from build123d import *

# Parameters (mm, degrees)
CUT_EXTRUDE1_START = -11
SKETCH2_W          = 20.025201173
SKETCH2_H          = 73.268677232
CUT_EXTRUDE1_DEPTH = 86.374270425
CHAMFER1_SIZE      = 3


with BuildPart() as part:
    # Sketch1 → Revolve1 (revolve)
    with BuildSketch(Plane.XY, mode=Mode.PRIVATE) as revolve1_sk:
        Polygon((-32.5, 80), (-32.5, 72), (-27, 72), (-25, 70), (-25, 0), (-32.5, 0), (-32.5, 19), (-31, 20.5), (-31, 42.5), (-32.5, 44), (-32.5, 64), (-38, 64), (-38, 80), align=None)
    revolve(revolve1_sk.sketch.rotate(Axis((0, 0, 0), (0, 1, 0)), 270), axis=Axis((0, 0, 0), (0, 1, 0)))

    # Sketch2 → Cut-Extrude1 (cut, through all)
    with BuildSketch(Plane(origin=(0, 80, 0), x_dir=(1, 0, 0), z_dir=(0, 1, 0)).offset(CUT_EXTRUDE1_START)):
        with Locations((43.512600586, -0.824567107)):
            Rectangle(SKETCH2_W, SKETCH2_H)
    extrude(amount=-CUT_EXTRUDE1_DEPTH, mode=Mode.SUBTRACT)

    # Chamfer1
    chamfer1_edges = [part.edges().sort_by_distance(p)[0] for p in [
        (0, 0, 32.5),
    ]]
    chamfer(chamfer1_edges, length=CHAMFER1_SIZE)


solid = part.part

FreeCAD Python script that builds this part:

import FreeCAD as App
import Part
import Sketcher
from FreeCAD import Vector


def edges_at(feature, points):
    """Names of the edges that pass closest to the given points."""
    edges = feature.Shape.Edges
    near = lambda p: min(range(len(edges)), key=lambda i: edges[i].distToShape(Part.Vertex(*p))[0])
    return sorted({f"Edge{near(p) + 1}" for p in points})

doc = App.newDocument("Part")
body = doc.addObject("PartDesign::Body", "Body")

# Sketch on XY plane
sketch1 = body.newObject("Sketcher::SketchObject", "Sketch")
sketch1.AttachmentSupport = (doc.getObject("XY_Plane"), [""])
sketch1.MapMode = "FlatFace"
sketch1.addGeometry([
    Part.LineSegment(Vector(-32.5, 72, 0), Vector(-32.5, 80, 0)),  # 0
    Part.LineSegment(Vector(-32.5, 80, 0), Vector(-38, 80, 0)),  # 1
    Part.LineSegment(Vector(-38, 80, 0), Vector(-38, 64, 0)),  # 2
    Part.LineSegment(Vector(-38, 64, 0), Vector(-32.5, 64, 0)),  # 3
    Part.LineSegment(Vector(-32.5, 64, 0), Vector(-32.5, 44, 0)),  # 4
    Part.LineSegment(Vector(-32.5, 44, 0), Vector(-31, 42.5, 0)),  # 5
    Part.LineSegment(Vector(-31, 42.5, 0), Vector(-31, 20.5, 0)),  # 6
    Part.LineSegment(Vector(-31, 20.5, 0), Vector(-32.5, 19, 0)),  # 7
    Part.LineSegment(Vector(-32.5, 19, 0), Vector(-32.5, 0, 0)),  # 8
    Part.LineSegment(Vector(-32.5, 0, 0), Vector(-25, 0, 0)),  # 9
    Part.LineSegment(Vector(-25, 0, 0), Vector(-25, 70, 0)),  # 10
    Part.LineSegment(Vector(-25, 70, 0), Vector(-27, 72, 0)),  # 11
    Part.LineSegment(Vector(-27, 72, 0), Vector(-32.5, 72, 0)),  # 12
], False)
sketch1.addConstraint([
    Sketcher.Constraint("Coincident", 0, 2, 1, 1),
    Sketcher.Constraint("Coincident", 1, 2, 2, 1),
    Sketcher.Constraint("Coincident", 2, 2, 3, 1),
    Sketcher.Constraint("Coincident", 3, 2, 4, 1),
    Sketcher.Constraint("Coincident", 4, 2, 5, 1),
    Sketcher.Constraint("Coincident", 5, 2, 6, 1),
    Sketcher.Constraint("Coincident", 6, 2, 7, 1),
    Sketcher.Constraint("Coincident", 7, 2, 8, 1),
    Sketcher.Constraint("Coincident", 8, 2, 9, 1),
    Sketcher.Constraint("Coincident", 9, 2, 10, 1),
    Sketcher.Constraint("Coincident", 10, 2, 11, 1),
    Sketcher.Constraint("Coincident", 11, 2, 12, 1),
    Sketcher.Constraint("Coincident", 12, 2, 0, 1),
    Sketcher.Constraint("Vertical", 0),
    Sketcher.Constraint("Horizontal", 1),
    Sketcher.Constraint("Vertical", 2),
    Sketcher.Constraint("Horizontal", 3),
    Sketcher.Constraint("Vertical", 4),
    Sketcher.Constraint("Vertical", 6),
    Sketcher.Constraint("Vertical", 8),
    Sketcher.Constraint("Horizontal", 9),
    Sketcher.Constraint("Vertical", 10),
    Sketcher.Constraint("Horizontal", 12),
    Sketcher.Constraint("PointOnObject", 8, 2, -1),
    Sketcher.Constraint("Perpendicular", 5, 7),
    Sketcher.Constraint("Perpendicular", 7, 11),
    Sketcher.Constraint("Vertical", 0, 2, 3, 2),
    Sketcher.Constraint("Vertical", 4, 2, 7, 2),
    Sketcher.Constraint("Equal", 3, 12),
    Sketcher.Constraint("Equal", 5, 7),
    Sketcher.Constraint("DistanceY", 0, 1, 0, 2, 8.0),
    Sketcher.Constraint("DistanceY", 2, 2, 2, 1, 16.0),
    Sketcher.Constraint("DistanceY", 4, 2, 4, 1, 20.0),
    Sketcher.Constraint("DistanceY", 6, 2, 6, 1, 22.0),
    Sketcher.Constraint("DistanceY", 8, 2, 8, 1, 19.0),
    Sketcher.Constraint("DistanceY", 10, 1, 10, 2, 70.0),
    Sketcher.Constraint("DistanceX", 1, 2, 1, 1, 5.5),
    Sketcher.Constraint("DistanceX", 9, 1, 9, 2, 7.5),
    Sketcher.Constraint("DistanceX", 1, 2, -1, 1, 38.0),
])
revolution = body.newObject("PartDesign::Revolution", "Revolution")
revolution.Profile = sketch1
revolution.ReferenceAxis = (sketch1, ["V_Axis"])
revolution.Angle = 360

# Sketch on XZ plane
sketch2 = body.newObject("Sketcher::SketchObject", "Sketch001")
sketch2.AttachmentSupport = (doc.getObject("XZ_Plane"), [""])
sketch2.MapMode = "FlatFace"
sketch2.AttachmentOffset = App.Placement(Vector(0, 0, -69), App.Rotation())
sketch2.addGeometry([
    Part.LineSegment(Vector(33.5, -35.809772, 0), Vector(33.5, 37.458906, 0)),
    Part.LineSegment(Vector(33.5, 37.458906, 0), Vector(53.525201, 37.458906, 0)),
    Part.LineSegment(Vector(53.525201, 37.458906, 0), Vector(53.525201, -35.809772, 0)),
    Part.LineSegment(Vector(53.525201, -35.809772, 0), Vector(33.5, -35.809772, 0)),
], False)
sketch2.addConstraint([
    Sketcher.Constraint("Coincident", 0, 2, 1, 1),
    Sketcher.Constraint("Coincident", 1, 2, 2, 1),
    Sketcher.Constraint("Coincident", 2, 2, 3, 1),
    Sketcher.Constraint("Coincident", 3, 2, 0, 1),
    Sketcher.Constraint("Vertical", 0),
    Sketcher.Constraint("Horizontal", 1),
    Sketcher.Constraint("Vertical", 2),
    Sketcher.Constraint("Horizontal", 3),
    Sketcher.Constraint("DistanceX", -1, 1, 0, 2, 33.5),
    Sketcher.Constraint("DistanceX", 1, 1, 1, 2, 20.025201),
    Sketcher.Constraint("DistanceY", 0, 1, 0, 2, 73.268677),
    Sketcher.Constraint("DistanceY", 2, 2, -1, 1, 35.809772),
])
pocket1 = body.newObject("PartDesign::Pocket", "Pocket")
pocket1.Profile = sketch2
pocket1.Type = "ThroughAll"
pocket1.Reversed = True
doc.recompute()

chamfer = body.newObject("PartDesign::Chamfer", "Chamfer")
chamfer.Base = (pocket1, edges_at(pocket1, [(0, 0, 32.5)]))
chamfer.Size = 3

doc.recompute()
